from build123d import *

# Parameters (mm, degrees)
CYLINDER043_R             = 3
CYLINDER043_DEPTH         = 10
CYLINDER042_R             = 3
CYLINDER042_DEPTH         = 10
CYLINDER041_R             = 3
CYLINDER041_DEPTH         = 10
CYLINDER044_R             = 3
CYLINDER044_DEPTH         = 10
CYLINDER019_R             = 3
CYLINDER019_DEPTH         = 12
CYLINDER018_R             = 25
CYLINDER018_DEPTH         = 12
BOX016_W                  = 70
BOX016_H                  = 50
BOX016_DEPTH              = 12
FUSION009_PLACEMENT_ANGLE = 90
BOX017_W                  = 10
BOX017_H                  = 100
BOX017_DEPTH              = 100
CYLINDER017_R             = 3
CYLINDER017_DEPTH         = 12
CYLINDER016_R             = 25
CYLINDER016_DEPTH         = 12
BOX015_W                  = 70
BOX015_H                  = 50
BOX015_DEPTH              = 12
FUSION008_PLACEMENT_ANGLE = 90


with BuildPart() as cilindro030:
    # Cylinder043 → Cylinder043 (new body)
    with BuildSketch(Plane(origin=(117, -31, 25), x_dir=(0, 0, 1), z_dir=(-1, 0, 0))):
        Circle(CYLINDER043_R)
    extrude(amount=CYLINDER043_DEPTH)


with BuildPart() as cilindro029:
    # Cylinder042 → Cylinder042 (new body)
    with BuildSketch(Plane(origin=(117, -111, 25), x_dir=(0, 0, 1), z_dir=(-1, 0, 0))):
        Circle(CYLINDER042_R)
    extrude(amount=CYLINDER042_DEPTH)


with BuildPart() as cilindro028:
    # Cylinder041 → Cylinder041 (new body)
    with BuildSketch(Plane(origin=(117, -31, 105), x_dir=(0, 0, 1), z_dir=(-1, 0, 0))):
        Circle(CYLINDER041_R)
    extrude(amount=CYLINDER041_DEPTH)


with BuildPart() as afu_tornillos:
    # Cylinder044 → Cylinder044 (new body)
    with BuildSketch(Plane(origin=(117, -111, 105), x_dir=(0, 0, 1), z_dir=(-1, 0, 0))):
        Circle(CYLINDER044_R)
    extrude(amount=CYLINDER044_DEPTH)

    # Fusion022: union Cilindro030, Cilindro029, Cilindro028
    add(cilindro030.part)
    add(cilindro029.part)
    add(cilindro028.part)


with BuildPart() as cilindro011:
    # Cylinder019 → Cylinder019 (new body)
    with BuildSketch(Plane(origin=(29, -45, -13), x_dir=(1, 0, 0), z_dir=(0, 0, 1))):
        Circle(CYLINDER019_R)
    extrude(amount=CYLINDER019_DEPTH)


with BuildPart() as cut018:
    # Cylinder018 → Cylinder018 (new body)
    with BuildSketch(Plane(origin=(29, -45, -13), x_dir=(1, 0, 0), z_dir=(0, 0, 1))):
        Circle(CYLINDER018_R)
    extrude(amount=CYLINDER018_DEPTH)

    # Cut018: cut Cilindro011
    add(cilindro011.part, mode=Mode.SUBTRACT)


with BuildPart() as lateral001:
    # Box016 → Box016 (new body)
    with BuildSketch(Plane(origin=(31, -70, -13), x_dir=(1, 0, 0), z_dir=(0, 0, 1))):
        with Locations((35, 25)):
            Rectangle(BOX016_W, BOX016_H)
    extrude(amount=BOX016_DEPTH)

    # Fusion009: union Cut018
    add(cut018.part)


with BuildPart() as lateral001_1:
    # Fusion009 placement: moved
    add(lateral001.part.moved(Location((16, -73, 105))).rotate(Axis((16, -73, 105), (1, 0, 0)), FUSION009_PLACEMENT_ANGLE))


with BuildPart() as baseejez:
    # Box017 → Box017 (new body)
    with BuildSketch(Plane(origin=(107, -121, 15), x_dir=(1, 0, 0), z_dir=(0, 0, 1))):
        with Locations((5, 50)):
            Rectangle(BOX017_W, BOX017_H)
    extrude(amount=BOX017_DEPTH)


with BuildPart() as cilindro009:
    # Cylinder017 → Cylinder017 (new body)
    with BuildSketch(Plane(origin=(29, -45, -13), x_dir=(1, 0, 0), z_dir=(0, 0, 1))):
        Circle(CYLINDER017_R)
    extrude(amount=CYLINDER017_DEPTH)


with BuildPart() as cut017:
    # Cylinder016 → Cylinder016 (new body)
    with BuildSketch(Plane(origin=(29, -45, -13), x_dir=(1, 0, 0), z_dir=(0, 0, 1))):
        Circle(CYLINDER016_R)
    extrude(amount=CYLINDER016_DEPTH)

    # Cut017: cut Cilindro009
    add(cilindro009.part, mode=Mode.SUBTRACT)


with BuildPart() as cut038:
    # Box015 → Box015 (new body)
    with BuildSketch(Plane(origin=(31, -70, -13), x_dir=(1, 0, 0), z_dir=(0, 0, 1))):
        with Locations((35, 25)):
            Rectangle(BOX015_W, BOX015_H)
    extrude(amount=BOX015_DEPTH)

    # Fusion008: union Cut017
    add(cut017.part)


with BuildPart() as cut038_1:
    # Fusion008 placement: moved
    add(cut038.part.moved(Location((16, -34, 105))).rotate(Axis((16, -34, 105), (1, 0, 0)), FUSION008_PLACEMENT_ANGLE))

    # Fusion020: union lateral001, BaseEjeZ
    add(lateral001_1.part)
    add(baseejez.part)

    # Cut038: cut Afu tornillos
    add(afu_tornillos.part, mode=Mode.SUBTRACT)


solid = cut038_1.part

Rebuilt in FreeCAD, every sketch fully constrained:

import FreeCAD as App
import Part
import Sketcher
Q = App.Units.Quantity


def add_polygon(sketch, points):
    """Adds a closed chain of lines whose ends are joined by coincident constraints."""
    first, n = sketch.GeometryCount, len(points)
    for a, b in zip(points, points[1:] + points[:1]):
        sketch.addGeometry(Part.LineSegment(App.Vector(*a, 0), App.Vector(*b, 0)), False)
    for i in range(n):
        sketch.addConstraint(Sketcher.Constraint("Coincident", first + i, 2, first + (i + 1) % n, 1))

doc = App.newDocument("Part")
params = doc.addObject("Spreadsheet::Sheet", "Params")
for row, (alias, value) in enumerate([
    ("sketch1_diameter", "6 mm"),
    ("pad1_length", "10 mm"),
    ("sketch2_diameter", "6 mm"),
    ("pad2_length", "10 mm"),
    ("sketch3_diameter", "6 mm"),
    ("pad3_length", "10 mm"),
    ("sketch4_diameter", "6 mm"),
    ("pad4_length", "10 mm"),
    ("sketch5_diameter", "6 mm"),
    ("pad5_length", "12 mm"),
    ("sketch6_diameter", "50 mm"),
    ("pad6_length", "12 mm"),
    ("sketch7_width", "70 mm"),
    ("sketch7_height", "50 mm"),
    ("pad7_length", "12 mm"),
    ("sketch8_width", "10 mm"),
    ("sketch8_height", "100 mm"),
    ("pad8_length", "100 mm"),
    ("sketch9_diameter", "6 mm"),
    ("pad9_length", "12 mm"),
    ("sketch10_diameter", "50 mm"),
    ("pad10_length", "12 mm"),
    ("sketch11_width", "70 mm"),
    ("sketch11_height", "50 mm"),
    ("pad11_length", "12 mm"),
], start=1):
    params.set(f"A{row}", alias)
    params.set(f"B{row}", "=" + value)
    params.setAlias(f"B{row}", alias)

body = doc.addObject("PartDesign::Body", "Body")

# Sketch on YZ plane
sketch1 = body.newObject("Sketcher::SketchObject", "Sketch")
sketch1.AttachmentSupport = (doc.getObject("YZ_Plane"), [""])
sketch1.MapMode = "FlatFace"
sketch1.AttachmentOffset = App.Placement(App.Vector(0, 0, 117), App.Rotation())
sketch1.addGeometry(Part.Circle(App.Vector(-31, 25, 0), App.Vector(0, 0, 1), 3), False)
sketch1.addConstraint([
    Sketcher.Constraint("Diameter", 0, Q("6 mm")),
    Sketcher.Constraint("DistanceX", 0, 3, -1, 1, Q("31 mm")),
    Sketcher.Constraint("DistanceY", -1, 1, 0, 3, Q("25 mm")),
])
sketch1.setExpression("Constraints[0]", "Params.sketch1_diameter")
pad1 = body.newObject("PartDesign::Pad", "Pad")
pad1.Profile = sketch1
pad1.setExpression("Length", "Params.pad1_length")
pad1.Reversed = True
body2 = doc.addObject("PartDesign::Body", "Body001")

# Sketch on YZ plane
sketch2 = body2.newObject("Sketcher::SketchObject", "Sketch001")
sketch2.AttachmentSupport = (doc.getObject("YZ_Plane001"), [""])
sketch2.MapMode = "FlatFace"
sketch2.AttachmentOffset = App.Placement(App.Vector(0, 0, 117), App.Rotation())
sketch2.addGeometry(Part.Circle(App.Vector(-111, 25, 0), App.Vector(0, 0, 1), 3), False)
sketch2.addConstraint([
    Sketcher.Constraint("Diameter", 0, Q("6 mm")),
    Sketcher.Constraint("DistanceX", 0, 3, -1, 1, Q("111 mm")),
    Sketcher.Constraint("DistanceY", -1, 1, 0, 3, Q("25 mm")),
])
sketch2.setExpression("Constraints[0]", "Params.sketch2_diameter")
pad2 = body2.newObject("PartDesign::Pad", "Pad001")
pad2.Profile = sketch2
pad2.setExpression("Length", "Params.pad2_length")
pad2.Reversed = True
body3 = doc.addObject("PartDesign::Body", "Body002")

# Sketch on YZ plane
sketch3 = body3.newObject("Sketcher::SketchObject", "Sketch002")
sketch3.AttachmentSupport = (doc.getObject("YZ_Plane002"), [""])
sketch3.MapMode = "FlatFace"
sketch3.AttachmentOffset = App.Placement(App.Vector(0, 0, 117), App.Rotation())
sketch3.addGeometry(Part.Circle(App.Vector(-31, 105, 0), App.Vector(0, 0, 1), 3), False)
sketch3.addConstraint([
    Sketcher.Constraint("Diameter", 0, Q("6 mm")),
    Sketcher.Constraint("DistanceX", 0, 3, -1, 1, Q("31 mm")),
    Sketcher.Constraint("DistanceY", -1, 1, 0, 3, Q("105 mm")),
])
sketch3.setExpression("Constraints[0]", "Params.sketch3_diameter")
pad3 = body3.newObject("PartDesign::Pad", "Pad002")
pad3.Profile = sketch3
pad3.setExpression("Length", "Params.pad3_length")
pad3.Reversed = True
body4 = doc.addObject("PartDesign::Body", "Body003")
body4.AllowCompound = True

# Sketch on YZ plane
sketch4 = body4.newObject("Sketcher::SketchObject", "Sketch003")
sketch4.AttachmentSupport = (doc.getObject("YZ_Plane003"), [""])
sketch4.MapMode = "FlatFace"
sketch4.AttachmentOffset = App.Placement(App.Vector(0, 0, 117), App.Rotation())
sketch4.addGeometry(Part.Circle(App.Vector(-111, 105, 0), App.Vector(0, 0, 1), 3), False)
sketch4.addConstraint([
    Sketcher.Constraint("Diameter", 0, Q("6 mm")),
    Sketcher.Constraint("DistanceX", 0, 3, -1, 1, Q("111 mm")),
    Sketcher.Constraint("DistanceY", -1, 1, 0, 3, Q("105 mm")),
])
sketch4.setExpression("Constraints[0]", "Params.sketch4_diameter")
pad4 = body4.newObject("PartDesign::Pad", "Pad003")
pad4.Profile = sketch4
pad4.setExpression("Length", "Params.pad4_length")
pad4.Reversed = True
doc.recompute()

boolean = body4.newObject("PartDesign::Boolean", "Boolean")
boolean.Type = "Fuse"
boolean.addObjects([body])
doc.recompute()

boolean2 = body4.newObject("PartDesign::Boolean", "Boolean001")
boolean2.Type = "Fuse"
boolean2.addObjects([body2])
doc.recompute()

boolean3 = body4.newObject("PartDesign::Boolean", "Boolean002")
boolean3.Type = "Fuse"
boolean3.addObjects([body3])
body5 = doc.addObject("PartDesign::Body", "Body004")

# Sketch on XY plane
sketch5 = body5.newObject("Sketcher::SketchObject", "Sketch004")
sketch5.AttachmentSupport = (doc.getObject("XY_Plane004"), [""])
sketch5.MapMode = "FlatFace"
sketch5.AttachmentOffset = App.Placement(App.Vector(0, 0, -13), App.Rotation())
sketch5.addGeometry(Part.Circle(App.Vector(29, -45, 0), App.Vector(0, 0, 1), 3), False)
sketch5.addConstraint([
    Sketcher.Constraint("Diameter", 0, Q("6 mm")),
    Sketcher.Constraint("DistanceX", -1, 1, 0, 3, Q("29 mm")),
    Sketcher.Constraint("DistanceY", 0, 3, -1, 1, Q("45 mm")),
])
sketch5.setExpression("Constraints[0]", "Params.sketch5_diameter")
pad5 = body5.newObject("PartDesign::Pad", "Pad004")
pad5.Profile = sketch5
pad5.setExpression("Length", "Params.pad5_length")
body6 = doc.addObject("PartDesign::Body", "Body005")

# Sketch on XY plane
sketch6 = body6.newObject("Sketcher::SketchObject", "Sketch005")
sketch6.AttachmentSupport = (doc.getObject("XY_Plane005"), [""])
sketch6.MapMode = "FlatFace"
sketch6.AttachmentOffset = App.Placement(App.Vector(0, 0, -13), App.Rotation())
sketch6.addGeometry(Part.Circle(App.Vector(29, -45, 0), App.Vector(0, 0, 1), 25), False)
sketch6.addConstraint([
    Sketcher.Constraint("Diameter", 0, Q("50 mm")),
    Sketcher.Constraint("DistanceX", -1, 1, 0, 3, Q("29 mm")),
    Sketcher.Constraint("DistanceY", 0, 3, -1, 1, Q("45 mm")),
])
sketch6.setExpression("Constraints[0]", "Params.sketch6_diameter")
pad6 = body6.newObject("PartDesign::Pad", "Pad005")
pad6.Profile = sketch6
pad6.setExpression("Length", "Params.pad6_length")
doc.recompute()

boolean4 = body6.newObject("PartDesign::Boolean", "Boolean003")
boolean4.Type = "Cut"
boolean4.addObjects([body5])
body7 = doc.addObject("PartDesign::Body", "Body006")

# Sketch on XY plane
sketch7 = body7.newObject("Sketcher::SketchObject", "Sketch006")
sketch7.AttachmentSupport = (doc.getObject("XY_Plane006"), [""])
sketch7.MapMode = "FlatFace"
sketch7.AttachmentOffset = App.Placement(App.Vector(0, 0, -13), App.Rotation())
add_polygon(sketch7, [(31, -20), (31, -70), (101, -70), (101, -20)])  # lines 0-3
sketch7.addConstraint([
    Sketcher.Constraint("Vertical", 0),
    Sketcher.Constraint("Horizontal", 1),
    Sketcher.Constraint("Vertical", 2),
    Sketcher.Constraint("Horizontal", 3),
    Sketcher.Constraint("DistanceX", 1, 1, 1, 2, Q("70 mm")),
    Sketcher.Constraint("DistanceY", 0, 2, 0, 1, Q("50 mm")),
    Sketcher.Constraint("DistanceX", -1, 1, 0, 2, Q("31 mm")),
    Sketcher.Constraint("DistanceY", 0, 2, -1, 1, Q("70 mm")),
])
sketch7.setExpression("Constraints[8]", "Params.sketch7_width")
sketch7.setExpression("Constraints[9]", "Params.sketch7_height")
pad7 = body7.newObject("PartDesign::Pad", "Pad006")
pad7.Profile = sketch7
pad7.setExpression("Length", "Params.pad7_length")
doc.recompute()

boolean5 = body7.newObject("PartDesign::Boolean", "Boolean004")
boolean5.Type = "Fuse"
boolean5.addObjects([body6])
body8 = doc.addObject("PartDesign::Body", "Body007")
doc.recompute()

body7.Placement = App.Placement(App.Vector(16, -73, 105), App.Rotation(App.Vector(1, 0, 0), 90))
boolean6 = body8.newObject("PartDesign::Boolean", "Boolean005")
boolean6.Type = "Fuse"
boolean6.addObjects([body7])
body9 = doc.addObject("PartDesign::Body", "Body008")

# Sketch on XY plane
sketch8 = body9.newObject("Sketcher::SketchObject", "Sketch007")
sketch8.AttachmentSupport = (doc.getObject("XY_Plane008"), [""])
sketch8.MapMode = "FlatFace"
sketch8.AttachmentOffset = App.Placement(App.Vector(0, 0, 15), App.Rotation())
add_polygon(sketch8, [(107, -21), (107, -121), (117, -121), (117, -21)])  # lines 0-3
sketch8.addConstraint([
    Sketcher.Constraint("Vertical", 0),
    Sketcher.Constraint("Horizontal", 1),
    Sketcher.Constraint("Vertical", 2),
    Sketcher.Constraint("Horizontal", 3),
    Sketcher.Constraint("DistanceX", 1, 1, 1, 2, Q("10 mm")),
    Sketcher.Constraint("DistanceY", 0, 2, 0, 1, Q("100 mm")),
    Sketcher.Constraint("DistanceX", -1, 1, 0, 2, Q("107 mm")),
    Sketcher.Constraint("DistanceY", 0, 2, -1, 1, Q("121 mm")),
])
sketch8.setExpression("Constraints[8]", "Params.sketch8_width")
sketch8.setExpression("Constraints[9]", "Params.sketch8_height")
pad8 = body9.newObject("PartDesign::Pad", "Pad007")
pad8.Profile = sketch8
pad8.setExpression("Length", "Params.pad8_length")
body10 = doc.addObject("PartDesign::Body", "Body009")

# Sketch on XY plane
sketch9 = body10.newObject("Sketcher::SketchObject", "Sketch008")
sketch9.AttachmentSupport = (doc.getObject("XY_Plane009"), [""])
sketch9.MapMode = "FlatFace"
sketch9.AttachmentOffset = App.Placement(App.Vector(0, 0, -13), App.Rotation())
sketch9.addGeometry(Part.Circle(App.Vector(29, -45, 0), App.Vector(0, 0, 1), 3), False)
sketch9.addConstraint([
    Sketcher.Constraint("Diameter", 0, Q("6 mm")),
    Sketcher.Constraint("DistanceX", -1, 1, 0, 3, Q("29 mm")),
    Sketcher.Constraint("DistanceY", 0, 3, -1, 1, Q("45 mm")),
])
sketch9.setExpression("Constraints[0]", "Params.sketch9_diameter")
pad9 = body10.newObject("PartDesign::Pad", "Pad008")
pad9.Profile = sketch9
pad9.setExpression("Length", "Params.pad9_length")
body11 = doc.addObject("PartDesign::Body", "Body010")

# Sketch on XY plane
sketch10 = body11.newObject("Sketcher::SketchObject", "Sketch009")
sketch10.AttachmentSupport = (doc.getObject("XY_Plane010"), [""])
sketch10.MapMode = "FlatFace"
sketch10.AttachmentOffset = App.Placement(App.Vector(0, 0, -13), App.Rotation())
sketch10.addGeometry(Part.Circle(App.Vector(29, -45, 0), App.Vector(0, 0, 1), 25), False)
sketch10.addConstraint([
    Sketcher.Constraint("Diameter", 0, Q("50 mm")),
    Sketcher.Constraint("DistanceX", -1, 1, 0, 3, Q("29 mm")),
    Sketcher.Constraint("DistanceY", 0, 3, -1, 1, Q("45 mm")),
])
sketch10.setExpression("Constraints[0]", "Params.sketch10_diameter")
pad10 = body11.newObject("PartDesign::Pad", "Pad009")
pad10.Profile = sketch10
pad10.setExpression("Length", "Params.pad10_length")
doc.recompute()

boolean7 = body11.newObject("PartDesign::Boolean", "Boolean006")
boolean7.Type = "Cut"
boolean7.addObjects([body10])
body12 = doc.addObject("PartDesign::Body", "Body011")

# Sketch on XY plane
sketch11 = body12.newObject("Sketcher::SketchObject", "Sketch010")
sketch11.AttachmentSupport = (doc.getObject("XY_Plane011"), [""])
sketch11.MapMode = "FlatFace"
sketch11.AttachmentOffset = App.Placement(App.Vector(0, 0, -13), App.Rotation())
add_polygon(sketch11, [(31, -20), (31, -70), (101, -70), (101, -20)])  # lines 0-3
sketch11.addConstraint([
    Sketcher.Constraint("Vertical", 0),
    Sketcher.Constraint("Horizontal", 1),
    Sketcher.Constraint("Vertical", 2),
    Sketcher.Constraint("Horizontal", 3),
    Sketcher.Constraint("DistanceX", 1, 1, 1, 2, Q("70 mm")),
    Sketcher.Constraint("DistanceY", 0, 2, 0, 1, Q("50 mm")),
    Sketcher.Constraint("DistanceX", -1, 1, 0, 2, Q("31 mm")),
    Sketcher.Constraint("DistanceY", 0, 2, -1, 1, Q("70 mm")),
])
sketch11.setExpression("Constraints[8]", "Params.sketch11_width")
sketch11.setExpression("Constraints[9]", "Params.sketch11_height")
pad11 = body12.newObject("PartDesign::Pad", "Pad010")
pad11.Profile = sketch11
pad11.setExpression("Length", "Params.pad11_length")
doc.recompute()

boolean8 = body12.newObject("PartDesign::Boolean", "Boolean007")
boolean8.Type = "Fuse"
boolean8.addObjects([body11])
body13 = doc.addObject("PartDesign::Body", "Body012")
body13.AllowCompound = True
doc.recompute()

body12.Placement = App.Placement(App.Vector(16, -34, 105), App.Rotation(App.Vector(1, 0, 0), 90))
boolean9 = body13.newObject("PartDesign::Boolean", "Boolean008")
boolean9.Type = "Fuse"
boolean9.addObjects([body12])
doc.recompute()

boolean10 = body13.newObject("PartDesign::Boolean", "Boolean009")
boolean10.Type = "Fuse"
boolean10.addObjects([body8])
doc.recompute()

boolean11 = body13.newObject("PartDesign::Boolean", "Boolean010")
boolean11.Type = "Fuse"
boolean11.addObjects([body9])
doc.recompute()

boolean12 = body13.newObject("PartDesign::Boolean", "Boolean011")
boolean12.Type = "Cut"
boolean12.addObjects([body4])

doc.recompute()
